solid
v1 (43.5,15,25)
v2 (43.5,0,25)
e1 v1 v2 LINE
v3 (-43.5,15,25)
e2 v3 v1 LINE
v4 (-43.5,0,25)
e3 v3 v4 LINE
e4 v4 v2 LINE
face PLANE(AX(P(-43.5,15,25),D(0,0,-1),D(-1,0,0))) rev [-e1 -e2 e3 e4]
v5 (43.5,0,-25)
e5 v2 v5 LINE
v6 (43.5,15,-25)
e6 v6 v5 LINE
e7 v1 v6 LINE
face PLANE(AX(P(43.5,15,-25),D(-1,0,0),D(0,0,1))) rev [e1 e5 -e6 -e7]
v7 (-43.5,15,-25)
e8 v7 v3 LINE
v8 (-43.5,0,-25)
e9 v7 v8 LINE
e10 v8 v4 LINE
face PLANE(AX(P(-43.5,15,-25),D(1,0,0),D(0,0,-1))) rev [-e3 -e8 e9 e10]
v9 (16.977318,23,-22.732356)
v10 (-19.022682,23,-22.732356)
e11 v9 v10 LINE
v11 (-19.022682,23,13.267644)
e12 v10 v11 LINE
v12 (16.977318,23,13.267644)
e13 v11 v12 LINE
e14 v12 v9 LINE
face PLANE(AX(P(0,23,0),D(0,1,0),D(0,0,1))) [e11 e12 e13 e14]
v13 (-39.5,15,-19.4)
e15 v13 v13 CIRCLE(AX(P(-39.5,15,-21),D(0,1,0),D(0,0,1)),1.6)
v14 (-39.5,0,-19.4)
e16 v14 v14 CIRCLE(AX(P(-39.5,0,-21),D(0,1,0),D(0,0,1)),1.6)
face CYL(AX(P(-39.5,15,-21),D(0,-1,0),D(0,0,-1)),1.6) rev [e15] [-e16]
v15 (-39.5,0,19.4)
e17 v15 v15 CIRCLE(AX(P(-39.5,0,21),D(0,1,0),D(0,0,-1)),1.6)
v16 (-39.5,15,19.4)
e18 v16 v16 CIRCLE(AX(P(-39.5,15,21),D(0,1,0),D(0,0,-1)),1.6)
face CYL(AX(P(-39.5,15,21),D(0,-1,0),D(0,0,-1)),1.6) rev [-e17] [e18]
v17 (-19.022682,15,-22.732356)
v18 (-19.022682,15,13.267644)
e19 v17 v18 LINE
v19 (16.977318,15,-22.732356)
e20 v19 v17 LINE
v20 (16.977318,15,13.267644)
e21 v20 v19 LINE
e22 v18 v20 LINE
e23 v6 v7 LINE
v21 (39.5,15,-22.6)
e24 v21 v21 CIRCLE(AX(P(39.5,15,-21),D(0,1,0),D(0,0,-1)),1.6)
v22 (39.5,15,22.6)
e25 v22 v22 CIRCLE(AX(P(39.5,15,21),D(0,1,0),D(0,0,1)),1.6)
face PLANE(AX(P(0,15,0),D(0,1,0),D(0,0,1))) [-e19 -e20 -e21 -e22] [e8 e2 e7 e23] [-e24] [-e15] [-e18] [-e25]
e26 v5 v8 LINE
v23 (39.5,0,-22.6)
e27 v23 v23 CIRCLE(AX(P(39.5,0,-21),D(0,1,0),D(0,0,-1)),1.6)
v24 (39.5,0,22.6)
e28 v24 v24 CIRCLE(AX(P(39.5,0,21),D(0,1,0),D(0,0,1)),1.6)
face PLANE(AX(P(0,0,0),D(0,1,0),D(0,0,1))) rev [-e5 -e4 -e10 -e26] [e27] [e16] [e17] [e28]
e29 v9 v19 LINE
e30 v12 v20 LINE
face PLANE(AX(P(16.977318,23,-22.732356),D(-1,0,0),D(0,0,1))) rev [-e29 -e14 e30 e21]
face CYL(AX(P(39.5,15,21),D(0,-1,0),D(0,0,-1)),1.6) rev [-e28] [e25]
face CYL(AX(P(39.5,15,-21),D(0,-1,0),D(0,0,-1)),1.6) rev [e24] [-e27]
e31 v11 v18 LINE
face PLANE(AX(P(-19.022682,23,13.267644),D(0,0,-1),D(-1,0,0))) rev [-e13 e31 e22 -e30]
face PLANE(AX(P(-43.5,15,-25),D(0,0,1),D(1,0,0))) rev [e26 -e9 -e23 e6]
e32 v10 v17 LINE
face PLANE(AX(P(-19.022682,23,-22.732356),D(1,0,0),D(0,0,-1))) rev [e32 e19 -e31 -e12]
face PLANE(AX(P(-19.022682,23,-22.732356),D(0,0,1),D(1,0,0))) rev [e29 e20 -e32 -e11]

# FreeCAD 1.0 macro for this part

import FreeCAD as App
import Part
import Sketcher


def add_polygon(sketch, points):
    """Adds a closed chain of lines whose ends are joined by coincident constraints."""
    first, n = sketch.GeometryCount, len(points)
    for a, b in zip(points, points[1:] + points[:1]):
        sketch.addGeometry(Part.LineSegment(App.Vector(*a, 0), App.Vector(*b, 0)), False)
    for i in range(n):
        sketch.addConstraint(Sketcher.Constraint("Coincident", first + i, 2, first + (i + 1) % n, 1))

doc = App.newDocument("Part")
body = doc.addObject("PartDesign::Body", "Body")

# Sketch on XZ plane
sketch1 = body.newObject("Sketcher::SketchObject", "Sketch")
sketch1.AttachmentSupport = (doc.getObject("XZ_Plane"), [""])
sketch1.MapMode = "FlatFace"
add_polygon(sketch1, [(-43.5, -25), (-43.5, 25), (43.5, 25), (43.5, -25)])  # lines 0-3
sketch1.addGeometry(Part.Circle(App.Vector(-39.5, 21, 0), App.Vector(0, 0, 1), 1.6), False)  # 4
sketch1.addGeometry(Part.Circle(App.Vector(39.5, 21, 0), App.Vector(0, 0, 1), 1.6), False)  # 5
sketch1.addGeometry(Part.Circle(App.Vector(-39.5, -21, 0), App.Vector(0, 0, 1), 1.6), False)  # 6
sketch1.addGeometry(Part.Circle(App.Vector(39.5, -21, 0), App.Vector(0, 0, 1), 1.6), False)  # 7
sketch1.addConstraint(Sketcher.Constraint("Vertical", 0))
sketch1.addConstraint(Sketcher.Constraint("Horizontal", 1))
sketch1.addConstraint(Sketcher.Constraint("Vertical", 2))
sketch1.addConstraint(Sketcher.Constraint("Horizontal", 3))
sketch1.addConstraint(Sketcher.Constraint("Equal", 4, 5))
sketch1.addConstraint(Sketcher.Constraint("Equal", 5, 6))
sketch1.addConstraint(Sketcher.Constraint("Equal", 6, 7))
sketch1.addConstraint(Sketcher.Constraint("Symmetric", 5, 3, 6, 3, -1, 1))
sketch1.addConstraint(Sketcher.Constraint("Symmetric", 4, 3, 7, 3, -1, 1))
sketch1.addConstraint(Sketcher.Constraint("Symmetric", 0, 2, 2, 2, -1, 1))
sketch1.addConstraint(Sketcher.Constraint("Symmetric", 4, 3, 5, 3, -2))
sketch1.addConstraint(Sketcher.Constraint("Diameter", 4, 3.2))
sketch1.addConstraint(Sketcher.Constraint("DistanceX", 1, 1, 1, 2, 87.0))
sketch1.addConstraint(Sketcher.Constraint("DistanceY", 0, 1, 0, 2, 50.0))
sketch1.addConstraint(Sketcher.Constraint("DistanceY", -1, 1, 4, 3, 21.0))
sketch1.addConstraint(Sketcher.Constraint("DistanceX", 4, 3, 5, 3, 79.0))
pad1 = body.newObject("PartDesign::Pad", "Pad")
pad1.Profile = sketch1
pad1.Length = 15
pad1.Reversed = True

# Sketch on XZ plane
sketch2 = body.newObject("Sketcher::SketchObject", "Sketch001")
sketch2.AttachmentSupport = (doc.getObject("XZ_Plane"), [""])
sketch2.MapMode = "FlatFace"
sketch2.AttachmentOffset = App.Placement(App.Vector(0, 0, -15), App.Rotation())
add_polygon(sketch2, [(-19.022682, -22.732356), (-19.022682, 13.267644), (16.977318, 13.267644), (16.977318, -22.732356)])  # lines 0-3
sketch2.addConstraint(Sketcher.Constraint("Vertical", 0))
sketch2.addConstraint(Sketcher.Constraint("Horizontal", 1))
sketch2.addConstraint(Sketcher.Constraint("Vertical", 2))
sketch2.addConstraint(Sketcher.Constraint("Horizontal", 3))
sketch2.addConstraint(Sketcher.Constraint("Equal", 3, 0))
sketch2.addConstraint(Sketcher.Constraint("DistanceX", 1, 1, 1, 2, 36.0))
sketch2.addConstraint(Sketcher.Constraint("DistanceX", 0, 2, -1, 1, 19.022682))
sketch2.addConstraint(Sketcher.Constraint("DistanceY", -1, 1, 0, 2, 13.267644))
pad2 = body.newObject("PartDesign::Pad", "Pad001")
pad2.Profile = sketch2
pad2.Length = 8
pad2.Reversed = True

doc.recompute()
